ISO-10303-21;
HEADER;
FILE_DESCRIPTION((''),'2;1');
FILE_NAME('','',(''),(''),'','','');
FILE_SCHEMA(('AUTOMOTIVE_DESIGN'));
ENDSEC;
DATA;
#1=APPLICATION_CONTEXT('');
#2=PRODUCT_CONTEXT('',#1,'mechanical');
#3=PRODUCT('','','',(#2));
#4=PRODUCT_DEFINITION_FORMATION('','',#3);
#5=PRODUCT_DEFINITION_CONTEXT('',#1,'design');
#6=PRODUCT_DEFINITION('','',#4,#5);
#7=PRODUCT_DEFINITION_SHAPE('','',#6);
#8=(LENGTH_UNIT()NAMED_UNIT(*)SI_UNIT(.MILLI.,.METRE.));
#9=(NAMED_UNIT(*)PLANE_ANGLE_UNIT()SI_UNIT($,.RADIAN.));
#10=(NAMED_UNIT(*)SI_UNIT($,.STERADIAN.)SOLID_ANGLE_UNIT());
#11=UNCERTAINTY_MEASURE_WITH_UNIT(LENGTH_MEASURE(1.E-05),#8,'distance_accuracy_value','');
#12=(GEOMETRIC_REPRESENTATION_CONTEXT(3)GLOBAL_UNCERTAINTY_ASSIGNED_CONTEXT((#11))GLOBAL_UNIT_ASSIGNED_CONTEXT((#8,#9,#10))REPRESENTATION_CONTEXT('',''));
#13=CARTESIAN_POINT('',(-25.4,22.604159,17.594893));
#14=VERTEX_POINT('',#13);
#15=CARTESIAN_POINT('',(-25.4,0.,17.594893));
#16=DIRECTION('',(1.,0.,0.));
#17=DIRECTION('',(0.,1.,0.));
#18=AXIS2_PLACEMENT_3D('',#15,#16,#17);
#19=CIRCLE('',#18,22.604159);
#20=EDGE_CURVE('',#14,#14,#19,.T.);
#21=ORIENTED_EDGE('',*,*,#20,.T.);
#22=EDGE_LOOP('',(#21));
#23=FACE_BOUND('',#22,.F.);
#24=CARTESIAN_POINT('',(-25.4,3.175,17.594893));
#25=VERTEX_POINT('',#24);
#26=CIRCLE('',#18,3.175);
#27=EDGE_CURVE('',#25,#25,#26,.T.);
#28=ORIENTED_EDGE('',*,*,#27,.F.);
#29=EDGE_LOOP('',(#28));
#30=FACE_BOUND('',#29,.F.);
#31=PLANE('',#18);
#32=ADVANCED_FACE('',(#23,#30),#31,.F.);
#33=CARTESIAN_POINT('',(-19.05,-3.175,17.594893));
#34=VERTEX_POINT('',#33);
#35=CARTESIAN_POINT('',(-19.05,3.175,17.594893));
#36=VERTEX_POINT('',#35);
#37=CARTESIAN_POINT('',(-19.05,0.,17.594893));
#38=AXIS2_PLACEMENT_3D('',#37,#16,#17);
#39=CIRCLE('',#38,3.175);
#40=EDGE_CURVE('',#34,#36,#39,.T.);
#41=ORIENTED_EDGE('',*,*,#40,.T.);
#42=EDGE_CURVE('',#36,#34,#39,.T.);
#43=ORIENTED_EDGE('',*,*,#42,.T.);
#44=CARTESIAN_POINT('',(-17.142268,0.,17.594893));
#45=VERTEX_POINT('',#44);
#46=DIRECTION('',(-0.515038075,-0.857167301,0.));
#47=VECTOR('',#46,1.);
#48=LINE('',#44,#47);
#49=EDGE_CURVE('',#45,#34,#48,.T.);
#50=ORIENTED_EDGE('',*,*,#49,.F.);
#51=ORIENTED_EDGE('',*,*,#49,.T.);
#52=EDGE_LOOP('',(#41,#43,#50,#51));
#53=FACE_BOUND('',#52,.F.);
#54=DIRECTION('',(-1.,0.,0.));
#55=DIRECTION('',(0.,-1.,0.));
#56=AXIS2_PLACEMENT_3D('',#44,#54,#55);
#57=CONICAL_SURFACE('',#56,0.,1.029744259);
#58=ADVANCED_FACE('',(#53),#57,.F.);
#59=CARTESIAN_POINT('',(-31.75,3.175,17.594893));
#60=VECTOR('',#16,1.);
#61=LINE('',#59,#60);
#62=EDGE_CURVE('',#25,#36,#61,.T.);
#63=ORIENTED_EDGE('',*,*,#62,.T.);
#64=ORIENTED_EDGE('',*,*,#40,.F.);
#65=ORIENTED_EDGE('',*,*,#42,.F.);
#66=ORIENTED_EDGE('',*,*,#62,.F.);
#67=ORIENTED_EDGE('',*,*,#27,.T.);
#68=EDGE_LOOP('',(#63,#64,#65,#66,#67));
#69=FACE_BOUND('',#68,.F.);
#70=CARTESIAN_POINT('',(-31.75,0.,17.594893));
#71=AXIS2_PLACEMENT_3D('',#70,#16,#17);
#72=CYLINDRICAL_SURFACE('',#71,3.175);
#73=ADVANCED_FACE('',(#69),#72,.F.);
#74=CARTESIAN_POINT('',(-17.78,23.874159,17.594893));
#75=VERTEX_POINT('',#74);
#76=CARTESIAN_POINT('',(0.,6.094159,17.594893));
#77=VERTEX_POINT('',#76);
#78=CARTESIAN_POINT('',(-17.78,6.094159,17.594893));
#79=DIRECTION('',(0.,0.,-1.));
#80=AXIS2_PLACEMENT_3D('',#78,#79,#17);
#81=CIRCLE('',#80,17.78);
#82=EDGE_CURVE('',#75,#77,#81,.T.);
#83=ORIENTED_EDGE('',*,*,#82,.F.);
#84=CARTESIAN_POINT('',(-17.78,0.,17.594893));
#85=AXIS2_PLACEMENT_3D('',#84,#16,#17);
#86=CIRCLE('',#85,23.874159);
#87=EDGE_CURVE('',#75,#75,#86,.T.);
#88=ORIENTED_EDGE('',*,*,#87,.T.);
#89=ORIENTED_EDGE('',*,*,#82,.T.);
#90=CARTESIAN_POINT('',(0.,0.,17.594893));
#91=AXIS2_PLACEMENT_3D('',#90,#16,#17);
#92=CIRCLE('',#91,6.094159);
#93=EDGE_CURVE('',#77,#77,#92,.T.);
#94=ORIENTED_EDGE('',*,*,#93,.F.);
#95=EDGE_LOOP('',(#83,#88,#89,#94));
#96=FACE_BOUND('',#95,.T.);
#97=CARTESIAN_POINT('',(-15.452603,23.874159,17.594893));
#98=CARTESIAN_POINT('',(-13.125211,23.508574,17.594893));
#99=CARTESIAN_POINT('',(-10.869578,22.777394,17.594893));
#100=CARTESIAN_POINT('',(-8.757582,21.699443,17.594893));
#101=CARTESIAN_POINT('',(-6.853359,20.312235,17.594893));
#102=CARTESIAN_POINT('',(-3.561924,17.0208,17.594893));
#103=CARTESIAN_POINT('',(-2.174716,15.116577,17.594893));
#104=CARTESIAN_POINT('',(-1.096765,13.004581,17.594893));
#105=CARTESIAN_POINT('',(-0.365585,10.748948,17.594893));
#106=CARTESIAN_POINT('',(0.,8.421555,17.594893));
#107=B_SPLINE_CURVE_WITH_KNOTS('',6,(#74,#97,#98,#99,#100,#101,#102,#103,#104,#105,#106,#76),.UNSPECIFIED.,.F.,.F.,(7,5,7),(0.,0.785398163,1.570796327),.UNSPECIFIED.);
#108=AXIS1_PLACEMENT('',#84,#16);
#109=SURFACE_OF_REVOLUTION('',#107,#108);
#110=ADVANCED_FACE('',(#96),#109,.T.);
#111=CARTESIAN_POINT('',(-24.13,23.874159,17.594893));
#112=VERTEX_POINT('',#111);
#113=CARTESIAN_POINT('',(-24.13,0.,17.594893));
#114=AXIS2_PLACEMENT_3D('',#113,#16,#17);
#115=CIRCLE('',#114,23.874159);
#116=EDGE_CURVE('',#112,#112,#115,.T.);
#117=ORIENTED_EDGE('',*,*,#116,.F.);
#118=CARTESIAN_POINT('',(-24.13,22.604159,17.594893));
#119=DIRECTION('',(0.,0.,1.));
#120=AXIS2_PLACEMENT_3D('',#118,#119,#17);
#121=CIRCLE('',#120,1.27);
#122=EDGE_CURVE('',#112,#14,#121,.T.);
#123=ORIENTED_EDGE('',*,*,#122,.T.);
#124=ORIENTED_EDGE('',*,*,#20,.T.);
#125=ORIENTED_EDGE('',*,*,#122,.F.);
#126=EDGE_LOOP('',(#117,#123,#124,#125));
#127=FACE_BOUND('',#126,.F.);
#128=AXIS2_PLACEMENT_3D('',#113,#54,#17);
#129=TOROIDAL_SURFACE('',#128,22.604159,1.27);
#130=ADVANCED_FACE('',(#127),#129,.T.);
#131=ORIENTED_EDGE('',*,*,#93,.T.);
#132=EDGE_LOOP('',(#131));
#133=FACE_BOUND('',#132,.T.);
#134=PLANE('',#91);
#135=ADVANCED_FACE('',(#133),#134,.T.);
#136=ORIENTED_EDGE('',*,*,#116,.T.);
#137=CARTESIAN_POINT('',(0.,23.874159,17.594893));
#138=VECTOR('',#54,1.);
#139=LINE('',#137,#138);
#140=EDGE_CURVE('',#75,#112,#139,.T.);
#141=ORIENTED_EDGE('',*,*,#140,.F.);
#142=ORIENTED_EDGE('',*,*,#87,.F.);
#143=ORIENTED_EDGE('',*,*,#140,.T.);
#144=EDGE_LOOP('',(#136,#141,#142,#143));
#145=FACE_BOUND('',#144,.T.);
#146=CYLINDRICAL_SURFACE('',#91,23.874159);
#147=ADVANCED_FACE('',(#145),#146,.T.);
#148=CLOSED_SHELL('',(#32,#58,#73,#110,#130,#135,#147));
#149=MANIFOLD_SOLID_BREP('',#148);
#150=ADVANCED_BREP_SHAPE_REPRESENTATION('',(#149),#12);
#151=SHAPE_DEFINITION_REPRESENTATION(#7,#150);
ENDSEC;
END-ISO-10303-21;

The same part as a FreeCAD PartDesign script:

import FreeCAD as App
import Part
import Sketcher
from FreeCAD import Vector
Q = App.Units.Quantity


def edges_at(feature, points):
    """Names of the edges that pass closest to the given points."""
    edges = feature.Shape.Edges
    near = lambda p: min(range(len(edges)), key=lambda i: edges[i].distToShape(Part.Vertex(*p))[0])
    return sorted({f"Edge{near(p) + 1}" for p in points})

doc = App.newDocument("Part")
body = doc.addObject("PartDesign::Body", "Body")

sketch1 = body.newObject("Sketcher::SketchObject", "Sketch")
sketch1.AttachmentSupport = (doc.getObject("YZ_Plane"), [""])
sketch1.MapMode = "FlatFace"
sketch1.addGeometry(Part.Circle(Vector(0, 18, 0), Vector(0, 0, 1), 24), False)
sketch1.addConstraint([
    Sketcher.Constraint("PointOnObject", 0, 3, -2),
    Sketcher.Constraint("Diameter", 0, 47.748318),
    Sketcher.Constraint("DistanceY", -1, 1, 0, 3, 17.594893),
])
pad1 = body.newObject("PartDesign::Pad", "Pad")
pad1.Profile = sketch1
pad1.Length = Q("1 in")
pad1.Reversed = True
doc.recompute()

fillet = body.newObject("PartDesign::Fillet", "Fillet")
fillet.Base = (pad1, edges_at(pad1, [(0, -23.874, 17.595)]))
fillet.Radius = Q("0.7 in")

sketch2 = body.newObject("Sketcher::SketchObject", "Sketch001")
sketch2.AttachmentSupport = (doc.getObject("YZ_Plane"), [""])
sketch2.MapMode = "FlatFace"
sketch2.AttachmentOffset = App.Placement(Vector(0, 0, -1 * 25.4), App.Rotation())
sketch2.addGeometry(Part.Circle(Vector(0, 17.6, 0), Vector(0, 0, 1), 3.2), False)
sketch2.addConstraint([
    Sketcher.Constraint("PointOnObject", 0, 3, -2),
    Sketcher.Constraint("Diameter", 0, Q("0.25 in")),
    Sketcher.Constraint("DistanceY", -1, 1, 0, 3, 17.594893),
])
doc.recompute()
hole = body.newObject("PartDesign::Hole", "Hole")
hole.Profile = sketch2
hole.ThreadType = "None"
hole.Diameter = Q("0.25 in")
hole.DepthType = "Dimension"
hole.Depth = Q("0.25 in")
hole.DrillPoint = "Angled"
hole.DrillPointAngle = 118
hole.Reversed = True
doc.recompute()

fillet2 = body.newObject("PartDesign::Fillet", "Fillet001")
fillet2.Base = (hole, edges_at(hole, [(-25.4, -23.874, 17.595)]))
fillet2.Radius = Q("0.05 in")

doc.recompute()
